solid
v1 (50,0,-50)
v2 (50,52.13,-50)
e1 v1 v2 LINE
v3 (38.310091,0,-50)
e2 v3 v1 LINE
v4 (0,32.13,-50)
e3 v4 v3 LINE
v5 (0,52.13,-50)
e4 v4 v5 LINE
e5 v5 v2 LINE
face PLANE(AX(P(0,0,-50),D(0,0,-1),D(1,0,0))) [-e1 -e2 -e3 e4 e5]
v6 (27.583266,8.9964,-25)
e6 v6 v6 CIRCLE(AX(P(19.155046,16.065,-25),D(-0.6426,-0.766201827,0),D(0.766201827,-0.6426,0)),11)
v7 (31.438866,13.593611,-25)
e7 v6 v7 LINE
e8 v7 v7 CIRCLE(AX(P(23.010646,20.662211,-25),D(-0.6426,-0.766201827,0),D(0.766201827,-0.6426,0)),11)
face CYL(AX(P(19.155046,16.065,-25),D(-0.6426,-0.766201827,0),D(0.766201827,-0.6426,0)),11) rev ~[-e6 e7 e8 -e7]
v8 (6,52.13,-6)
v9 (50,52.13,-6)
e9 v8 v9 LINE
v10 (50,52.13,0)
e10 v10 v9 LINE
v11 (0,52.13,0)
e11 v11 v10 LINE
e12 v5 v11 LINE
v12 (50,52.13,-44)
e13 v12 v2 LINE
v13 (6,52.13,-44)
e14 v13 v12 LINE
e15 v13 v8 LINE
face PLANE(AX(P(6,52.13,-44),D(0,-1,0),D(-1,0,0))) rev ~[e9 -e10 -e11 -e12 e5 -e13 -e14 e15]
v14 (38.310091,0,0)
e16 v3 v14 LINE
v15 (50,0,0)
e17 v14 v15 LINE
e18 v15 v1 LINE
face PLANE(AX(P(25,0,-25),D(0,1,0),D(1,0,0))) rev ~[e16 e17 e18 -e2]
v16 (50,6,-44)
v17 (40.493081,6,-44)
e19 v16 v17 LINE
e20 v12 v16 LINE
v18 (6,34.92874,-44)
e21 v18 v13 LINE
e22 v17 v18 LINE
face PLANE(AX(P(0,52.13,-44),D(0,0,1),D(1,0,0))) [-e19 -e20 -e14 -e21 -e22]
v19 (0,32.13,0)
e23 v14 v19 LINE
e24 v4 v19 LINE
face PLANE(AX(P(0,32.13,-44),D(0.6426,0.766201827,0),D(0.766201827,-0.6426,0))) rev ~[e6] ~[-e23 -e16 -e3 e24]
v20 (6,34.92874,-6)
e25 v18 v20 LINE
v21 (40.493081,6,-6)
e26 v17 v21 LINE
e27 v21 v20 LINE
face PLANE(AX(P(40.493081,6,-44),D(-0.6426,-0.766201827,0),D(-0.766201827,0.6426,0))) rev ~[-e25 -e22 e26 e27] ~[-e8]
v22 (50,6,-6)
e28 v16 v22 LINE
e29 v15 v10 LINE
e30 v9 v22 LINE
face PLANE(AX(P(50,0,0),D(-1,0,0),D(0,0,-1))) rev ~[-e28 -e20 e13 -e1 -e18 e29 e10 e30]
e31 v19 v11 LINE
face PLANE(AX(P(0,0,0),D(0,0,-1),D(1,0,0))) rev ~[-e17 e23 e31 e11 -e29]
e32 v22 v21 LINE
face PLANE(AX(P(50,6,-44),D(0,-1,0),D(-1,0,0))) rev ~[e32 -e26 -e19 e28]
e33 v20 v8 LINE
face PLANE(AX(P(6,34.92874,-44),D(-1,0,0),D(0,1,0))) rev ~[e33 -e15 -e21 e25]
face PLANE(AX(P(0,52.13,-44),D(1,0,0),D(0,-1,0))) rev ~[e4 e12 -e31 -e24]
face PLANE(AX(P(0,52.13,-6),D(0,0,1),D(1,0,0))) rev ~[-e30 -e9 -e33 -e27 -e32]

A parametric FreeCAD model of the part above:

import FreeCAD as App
import Part
import Sketcher
from FreeCAD import Vector


def add_polygon(sketch, points):
    """Adds a closed chain of lines whose ends are joined by coincident constraints."""
    first, n = sketch.GeometryCount, len(points)
    for a, b in zip(points, points[1:] + points[:1]):
        sketch.addGeometry(Part.LineSegment(App.Vector(*a, 0), App.Vector(*b, 0)), False)
    for i in range(n):
        sketch.addConstraint(Sketcher.Constraint("Coincident", first + i, 2, first + (i + 1) % n, 1))

doc = App.newDocument("Part")
params = doc.addObject("Spreadsheet::Sheet", "Params")
for row, (alias, value) in enumerate([
    ("sketch1_width", "50 mm"),
    ("pad1_length", "52.13 mm"),
    ("sketch2_length", "50 mm"),
    ("sketch2_height", "32.13 mm"),
    ("pocket1_length", "52.13 mm"),
    ("sketch3_width", "50 mm"),
    ("sketch3_height", "38 mm"),
    ("pocket2_length", "52.13 mm"),
    ("sketch4_width", "6 mm"),
    ("sketch4_height", "20 mm"),
    ("sketch4_length", "50 mm"),
    ("pad2_length", "38 mm"),
    ("sketch5_diameter", "22 mm"),
    ("pocket3_length", "52.13 mm"),
], start=1):
    params.set(f"A{row}", alias)
    params.set(f"B{row}", "=" + value)
    params.setAlias(f"B{row}", alias)

body = doc.addObject("PartDesign::Body", "Body")
body.AllowCompound = True

sketch1 = body.newObject("Sketcher::SketchObject", "Sketch")
sketch1.AttachmentSupport = (doc.getObject("XZ_Plane"), [""])
sketch1.MapMode = "FlatFace"
add_polygon(sketch1, [(0, -50), (0, 0), (50, 0), (50, -50)])
sketch1.addConstraint([
    Sketcher.Constraint("Vertical", 0),
    Sketcher.Constraint("Horizontal", 1),
    Sketcher.Constraint("Vertical", 2),
    Sketcher.Constraint("Horizontal", 3),
    Sketcher.Constraint("Coincident", 0, 2, -1, 1),
    Sketcher.Constraint("Equal", 3, 0),
    Sketcher.Constraint("DistanceX", 1, 1, 1, 2, 50.0),
])
sketch1.setExpression("Constraints[10]", "Params.sketch1_width")
pad1 = body.newObject("PartDesign::Pad", "Pad")
pad1.Profile = sketch1
pad1.setExpression("Length", "Params.pad1_length")
pad1.Reversed = True

sketch2 = body.newObject("Sketcher::SketchObject", "Sketch001")
sketch2.AttachmentSupport = (doc.getObject("XY_Plane"), [""])
sketch2.MapMode = "FlatFace"
add_polygon(sketch2, [(0, 32), (0, 0), (38, 0)])
sketch2.addConstraint([
    Sketcher.Constraint("Vertical", 0),
    Sketcher.Constraint("Horizontal", 1),
    Sketcher.Constraint("Coincident", 0, 2, -1, 1),
    Sketcher.Constraint("Distance", 2, 50.0),
    Sketcher.Constraint("DistanceY", 0, 2, 0, 1, 32.13),
])
sketch2.setExpression("Constraints[6]", "Params.sketch2_length")
sketch2.setExpression("Constraints[7]", "Params.sketch2_height")
pocket1 = body.newObject("PartDesign::Pocket", "Pocket")
pocket1.Profile = sketch2
pocket1.setExpression("Length", "Params.pocket1_length")

sketch3 = body.newObject("Sketcher::SketchObject", "Sketch002")
sketch3.AttachmentSupport = (doc.getObject("XZ_Plane"), [""])
sketch3.MapMode = "FlatFace"
sketch3.AttachmentOffset = App.Placement(Vector(0, 0, -52.13), App.Rotation())
add_polygon(sketch3, [(0, -44), (0, -6), (50, -6), (50, -44)])
sketch3.addConstraint([
    Sketcher.Constraint("Vertical", 0),
    Sketcher.Constraint("Horizontal", 1),
    Sketcher.Constraint("Vertical", 2),
    Sketcher.Constraint("Horizontal", 3),
    Sketcher.Constraint("PointOnObject", 0, 2, -2),
    Sketcher.Constraint("DistanceX", 1, 1, 1, 2, 50.0),
    Sketcher.Constraint("DistanceY", 0, 1, 0, 2, 38.0),
    Sketcher.Constraint("DistanceY", 0, 2, -1, 1, 6.0),
])
sketch3.setExpression("Constraints[9]", "Params.sketch3_width")
sketch3.setExpression("Constraints[10]", "Params.sketch3_height")
pocket2 = body.newObject("PartDesign::Pocket", "Pocket001")
pocket2.Profile = sketch3
pocket2.setExpression("Length", "Params.pocket2_length")
pocket2.Reversed = True

sketch4 = body.newObject("Sketcher::SketchObject", "Sketch003")
sketch4.AttachmentSupport = (doc.getObject("XY_Plane"), [""])
sketch4.MapMode = "FlatFace"
sketch4.AttachmentOffset = App.Placement(Vector(0, 0, -44), App.Rotation())
add_polygon(sketch4, [(6, 35), (6, 52), (0, 52), (0, 32), (38, 0), (50, 0), (50, 6), (40, 6)])
sketch4.addConstraint([
    Sketcher.Constraint("Vertical", 0),
    Sketcher.Constraint("Horizontal", 1),
    Sketcher.Constraint("Vertical", 2),
    Sketcher.Constraint("Horizontal", 4),
    Sketcher.Constraint("Vertical", 5),
    Sketcher.Constraint("Horizontal", 6),
    Sketcher.Constraint("PointOnObject", 1, 2, -2),
    Sketcher.Constraint("PointOnObject", 3, 2, -1),
    Sketcher.Constraint("Parallel", 3, 7),
    Sketcher.Constraint("Equal", 1, 5),
    Sketcher.Constraint("DistanceX", 1, 2, 1, 1, 6.0),
    Sketcher.Constraint("DistanceY", 2, 2, 2, 1, 20.0),
    Sketcher.Constraint("Distance", 3, 50.0),
    Sketcher.Constraint("DistanceX", -1, 1, 4, 2, 50.0),
    Sketcher.Constraint("DistanceY", -1, 1, 0, 2, 52.13),
    Sketcher.Constraint("DistanceX", 6, 2, 6, 1, 9.506919),
])
sketch4.setExpression("Constraints[18]", "Params.sketch4_width")
sketch4.setExpression("Constraints[19]", "Params.sketch4_height")
sketch4.setExpression("Constraints[20]", "Params.sketch4_length")
pad2 = body.newObject("PartDesign::Pad", "Pad001")
pad2.Profile = sketch4
pad2.setExpression("Length", "Params.pad2_length")

sketch5 = body.newObject("Sketcher::SketchObject", "Sketch004")
sketch5.Placement = App.Placement(Vector(15.819568, 18.862406, 0), App.Rotation(Vector(0.766201827, -0.6426, 0), Vector(0, 0, 1), Vector(-0.6426, -0.766201827, 0), "ZXY"))
sketch5.addGeometry(Part.Circle(Vector(4, -25, 0), Vector(0, 0, 1), 11), False)
sketch5.addConstraint([
    Sketcher.Constraint("Diameter", 0, 22.0),
    Sketcher.Constraint("DistanceY", 0, 3, -1, 1, 25.0),
    Sketcher.Constraint("DistanceX", -1, 1, 0, 3, 4.353262),
])
sketch5.setExpression("Constraints[0]", "Params.sketch5_diameter")
pocket3 = body.newObject("PartDesign::Pocket", "Pocket002")
pocket3.Profile = sketch5
pocket3.setExpression("Length", "Params.pocket3_length")

doc.recompute()
